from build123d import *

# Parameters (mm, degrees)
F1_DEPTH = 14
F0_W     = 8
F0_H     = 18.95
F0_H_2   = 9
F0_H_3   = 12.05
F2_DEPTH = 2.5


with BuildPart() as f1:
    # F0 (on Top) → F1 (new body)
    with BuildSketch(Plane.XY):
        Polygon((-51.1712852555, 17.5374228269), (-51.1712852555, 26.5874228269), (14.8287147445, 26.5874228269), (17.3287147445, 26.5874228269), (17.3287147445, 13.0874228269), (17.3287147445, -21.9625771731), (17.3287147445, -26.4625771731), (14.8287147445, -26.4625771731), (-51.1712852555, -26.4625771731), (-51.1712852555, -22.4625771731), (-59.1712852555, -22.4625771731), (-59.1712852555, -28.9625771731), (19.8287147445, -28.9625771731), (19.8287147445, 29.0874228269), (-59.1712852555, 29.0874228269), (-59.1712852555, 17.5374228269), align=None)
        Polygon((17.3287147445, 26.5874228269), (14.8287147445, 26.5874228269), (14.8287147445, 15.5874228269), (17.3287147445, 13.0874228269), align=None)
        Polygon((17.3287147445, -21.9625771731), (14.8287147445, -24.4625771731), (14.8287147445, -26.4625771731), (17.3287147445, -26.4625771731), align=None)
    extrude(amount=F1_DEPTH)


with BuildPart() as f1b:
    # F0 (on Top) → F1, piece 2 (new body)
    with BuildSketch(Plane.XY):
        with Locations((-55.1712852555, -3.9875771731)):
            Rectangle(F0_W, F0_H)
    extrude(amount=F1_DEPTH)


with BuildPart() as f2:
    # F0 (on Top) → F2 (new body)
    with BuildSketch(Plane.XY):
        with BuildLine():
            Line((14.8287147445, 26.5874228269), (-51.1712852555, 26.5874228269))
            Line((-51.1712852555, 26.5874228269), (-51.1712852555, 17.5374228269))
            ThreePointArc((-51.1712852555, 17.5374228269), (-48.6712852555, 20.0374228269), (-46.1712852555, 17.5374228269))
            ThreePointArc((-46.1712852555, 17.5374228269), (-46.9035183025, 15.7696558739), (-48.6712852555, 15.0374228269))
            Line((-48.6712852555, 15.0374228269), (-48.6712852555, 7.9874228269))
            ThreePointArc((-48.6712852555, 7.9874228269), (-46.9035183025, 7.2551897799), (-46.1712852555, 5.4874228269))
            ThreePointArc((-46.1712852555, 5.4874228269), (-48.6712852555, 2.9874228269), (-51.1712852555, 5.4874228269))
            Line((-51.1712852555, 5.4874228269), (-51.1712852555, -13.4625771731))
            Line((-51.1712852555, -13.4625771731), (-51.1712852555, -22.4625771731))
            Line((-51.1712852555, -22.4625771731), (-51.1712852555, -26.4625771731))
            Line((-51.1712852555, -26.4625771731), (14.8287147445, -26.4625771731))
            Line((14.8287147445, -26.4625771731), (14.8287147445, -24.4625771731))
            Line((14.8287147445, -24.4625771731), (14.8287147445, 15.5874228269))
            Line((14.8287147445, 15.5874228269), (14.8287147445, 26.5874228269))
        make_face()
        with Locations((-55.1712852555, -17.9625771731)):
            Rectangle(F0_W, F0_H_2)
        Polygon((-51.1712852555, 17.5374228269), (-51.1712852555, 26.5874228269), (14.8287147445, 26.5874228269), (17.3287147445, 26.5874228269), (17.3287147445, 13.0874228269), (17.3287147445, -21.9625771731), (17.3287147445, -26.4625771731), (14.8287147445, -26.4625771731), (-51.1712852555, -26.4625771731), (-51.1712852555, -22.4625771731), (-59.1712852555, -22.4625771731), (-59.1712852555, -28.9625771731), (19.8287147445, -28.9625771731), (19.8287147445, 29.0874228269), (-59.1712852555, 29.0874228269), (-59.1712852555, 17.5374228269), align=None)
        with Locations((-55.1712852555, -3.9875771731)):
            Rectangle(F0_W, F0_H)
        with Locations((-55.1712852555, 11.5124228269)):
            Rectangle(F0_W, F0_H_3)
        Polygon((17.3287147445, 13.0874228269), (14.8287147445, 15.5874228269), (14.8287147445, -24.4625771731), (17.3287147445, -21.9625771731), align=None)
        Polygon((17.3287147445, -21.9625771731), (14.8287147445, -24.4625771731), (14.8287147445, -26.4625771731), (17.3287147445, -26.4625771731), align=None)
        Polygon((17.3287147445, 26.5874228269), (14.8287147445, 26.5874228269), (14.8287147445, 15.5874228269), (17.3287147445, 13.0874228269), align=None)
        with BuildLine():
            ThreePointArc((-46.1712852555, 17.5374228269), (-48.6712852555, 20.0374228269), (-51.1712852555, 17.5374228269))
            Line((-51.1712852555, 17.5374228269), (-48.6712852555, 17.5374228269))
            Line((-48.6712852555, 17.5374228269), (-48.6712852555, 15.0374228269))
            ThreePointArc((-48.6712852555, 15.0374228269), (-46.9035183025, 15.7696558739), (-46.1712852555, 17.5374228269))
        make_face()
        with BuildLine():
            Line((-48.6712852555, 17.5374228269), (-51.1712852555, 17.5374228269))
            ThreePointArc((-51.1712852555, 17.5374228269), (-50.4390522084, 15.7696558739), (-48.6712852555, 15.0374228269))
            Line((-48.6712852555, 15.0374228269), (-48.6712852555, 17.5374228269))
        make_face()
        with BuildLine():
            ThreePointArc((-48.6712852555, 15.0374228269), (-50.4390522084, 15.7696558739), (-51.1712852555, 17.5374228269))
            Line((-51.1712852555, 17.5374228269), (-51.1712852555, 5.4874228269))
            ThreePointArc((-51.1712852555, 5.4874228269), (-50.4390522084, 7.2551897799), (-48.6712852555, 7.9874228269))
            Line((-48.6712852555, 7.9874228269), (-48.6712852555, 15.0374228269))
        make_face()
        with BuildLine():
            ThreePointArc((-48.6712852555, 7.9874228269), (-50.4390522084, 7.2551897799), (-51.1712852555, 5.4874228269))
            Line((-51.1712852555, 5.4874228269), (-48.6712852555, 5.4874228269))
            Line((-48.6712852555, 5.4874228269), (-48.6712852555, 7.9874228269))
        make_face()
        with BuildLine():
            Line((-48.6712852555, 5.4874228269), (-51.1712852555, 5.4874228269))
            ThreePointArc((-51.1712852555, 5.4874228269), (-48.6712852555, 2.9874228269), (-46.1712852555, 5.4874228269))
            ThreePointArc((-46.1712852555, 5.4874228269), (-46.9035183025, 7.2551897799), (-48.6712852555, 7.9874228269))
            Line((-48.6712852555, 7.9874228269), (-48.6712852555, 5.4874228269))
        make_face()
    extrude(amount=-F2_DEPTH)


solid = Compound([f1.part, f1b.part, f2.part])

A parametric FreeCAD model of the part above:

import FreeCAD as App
import Part
import Sketcher


def add_polygon(sketch, points):
    """Adds a closed chain of lines whose ends are joined by coincident constraints."""
    first, n = sketch.GeometryCount, len(points)
    for a, b in zip(points, points[1:] + points[:1]):
        sketch.addGeometry(Part.LineSegment(App.Vector(*a, 0), App.Vector(*b, 0)), False)
    for i in range(n):
        sketch.addConstraint(Sketcher.Constraint("Coincident", first + i, 2, first + (i + 1) % n, 1))

doc = App.newDocument("Part")
params = doc.addObject("Spreadsheet::Sheet", "Params")
for row, (alias, value) in enumerate([
    ("sketch1_width", "66 mm"),
    ("sketch1_width2", "8 mm"),
    ("sketch1_width3", "79 mm"),
    ("sketch1_height", "11 mm"),
    ("sketch1_height2", "2 mm"),
    ("pad1_length", "14 mm"),
    ("sketch2_width", "8 mm"),
    ("sketch2_height", "18.95 mm"),
    ("pad2_length", "14 mm"),
    ("sketch3_width", "79 mm"),
    ("sketch3_height", "58.05 mm"),
    ("pad3_length", "2.5 mm"),
], start=1):
    params.set(f"A{row}", alias)
    params.set(f"B{row}", "=" + value)
    params.setAlias(f"B{row}", alias)

body = doc.addObject("PartDesign::Body", "Body")

# Sketch on XY plane
sketch1 = body.newObject("Sketcher::SketchObject", "Sketch")
sketch1.AttachmentSupport = (doc.getObject("XY_Plane"), [""])
sketch1.MapMode = "FlatFace"
add_polygon(sketch1, [(-51.2, 17.5), (-51.2, 26.6), (14.8, 26.6), (14.8, 15.6), (17.3, 13.1), (17.3, -22), (14.8, -24.5), (14.8, -26.5), (-51.2, -26.5), (-51.2, -22.5), (-59.2, -22.5), (-59.2, -29), (19.8, -29), (19.8, 29.1), (-59.2, 29.1), (-59.2, 17.5)])  # lines 0-15
sketch1.addConstraint([
    Sketcher.Constraint("Vertical", 0),
    Sketcher.Constraint("Horizontal", 1),
    Sketcher.Constraint("Vertical", 2),
    Sketcher.Constraint("Vertical", 4),
    Sketcher.Constraint("Vertical", 6),
    Sketcher.Constraint("Horizontal", 7),
    Sketcher.Constraint("Vertical", 8),
    Sketcher.Constraint("Horizontal", 9),
    Sketcher.Constraint("Vertical", 10),
    Sketcher.Constraint("Horizontal", 11),
    Sketcher.Constraint("Vertical", 12),
    Sketcher.Constraint("Horizontal", 13),
    Sketcher.Constraint("Vertical", 14),
    Sketcher.Constraint("Horizontal", 15),
    Sketcher.Constraint("Perpendicular", 3, 5),
    Sketcher.Constraint("Vertical", 2, 2, 5, 2),
    Sketcher.Constraint("Vertical", 0, 2, 7, 2),
    Sketcher.Constraint("Vertical", 10, 2, 13, 2),
    Sketcher.Constraint("Equal", 3, 5),
    Sketcher.Constraint("DistanceX", 1, 1, 1, 2, 66.0),
    Sketcher.Constraint("DistanceX", 9, 2, 9, 1, 8.0),
    Sketcher.Constraint("DistanceX", 11, 1, 11, 2, 79.0),
    Sketcher.Constraint("DistanceY", 2, 2, 2, 1, 11.0),
    Sketcher.Constraint("DistanceY", 6, 2, 6, 1, 2.0),
    Sketcher.Constraint("DistanceY", 8, 1, 8, 2, 4.0),
    Sketcher.Constraint("DistanceY", 10, 2, 10, 1, 6.5),
    Sketcher.Constraint("DistanceY", 11, 2, 4, 2, 7.0),
    Sketcher.Constraint("DistanceY", 3, 2, 12, 2, 16.0),
    Sketcher.Constraint("DistanceY", 9, 2, 14, 2, 40.0),
    Sketcher.Constraint("DistanceY", 0, 1, 0, 2, 9.05),
    Sketcher.Constraint("DistanceX", 0, 2, -1, 1, 51.171285),
    Sketcher.Constraint("DistanceY", -1, 1, 0, 2, 26.587423),
])
sketch1.setExpression("Constraints[35]", "Params.sketch1_width")
sketch1.setExpression("Constraints[36]", "Params.sketch1_width2")
sketch1.setExpression("Constraints[37]", "Params.sketch1_width3")
sketch1.setExpression("Constraints[38]", "Params.sketch1_height")
sketch1.setExpression("Constraints[39]", "Params.sketch1_height2")
pad1 = body.newObject("PartDesign::Pad", "Pad")
pad1.Profile = sketch1
pad1.setExpression("Length", "Params.pad1_length")
body2 = doc.addObject("PartDesign::Body", "Body001")

# Sketch on XY plane
sketch2 = body2.newObject("Sketcher::SketchObject", "Sketch001")
sketch2.AttachmentSupport = (doc.getObject("XY_Plane001"), [""])
sketch2.MapMode = "FlatFace"
add_polygon(sketch2, [(-59, 5), (-59, -13), (-51, -13), (-51, 5)])  # lines 0-3
sketch2.addConstraint([
    Sketcher.Constraint("Vertical", 0),
    Sketcher.Constraint("Horizontal", 1),
    Sketcher.Constraint("Vertical", 2),
    Sketcher.Constraint("Horizontal", 3),
    Sketcher.Constraint("DistanceX", 1, 1, 1, 2, 8.0),
    Sketcher.Constraint("DistanceY", 0, 2, 0, 1, 18.95),
    Sketcher.Constraint("DistanceX", 0, 2, -1, 1, 59.171285),
    Sketcher.Constraint("DistanceY", 0, 2, -1, 1, 13.462577),
])
sketch2.setExpression("Constraints[8]", "Params.sketch2_width")
sketch2.setExpression("Constraints[9]", "Params.sketch2_height")
pad2 = body2.newObject("PartDesign::Pad", "Pad001")
pad2.Profile = sketch2
pad2.setExpression("Length", "Params.pad2_length")
body3 = doc.addObject("PartDesign::Body", "Body002")

# Sketch on XY plane
sketch3 = body3.newObject("Sketcher::SketchObject", "Sketch002")
sketch3.AttachmentSupport = (doc.getObject("XY_Plane002"), [""])
sketch3.MapMode = "FlatFace"
add_polygon(sketch3, [(-59, -29), (20, -29), (20, 29), (-59, 29)])  # lines 0-3
sketch3.addConstraint([
    Sketcher.Constraint("Horizontal", 0),
    Sketcher.Constraint("Vertical", 1),
    Sketcher.Constraint("Horizontal", 2),
    Sketcher.Constraint("Vertical", 3),
    Sketcher.Constraint("DistanceX", 0, 1, 0, 2, 79.0),
    Sketcher.Constraint("DistanceY", 1, 1, 1, 2, 58.05),
    Sketcher.Constraint("DistanceX", -1, 1, 0, 2, 19.828715),
    Sketcher.Constraint("DistanceY", 0, 2, -1, 1, 28.962577),
])
sketch3.setExpression("Constraints[8]", "Params.sketch3_width")
sketch3.setExpression("Constraints[9]", "Params.sketch3_height")
pad3 = body3.newObject("PartDesign::Pad", "Pad002")
pad3.Profile = sketch3
pad3.setExpression("Length", "Params.pad3_length")
pad3.Reversed = True

doc.recompute()
